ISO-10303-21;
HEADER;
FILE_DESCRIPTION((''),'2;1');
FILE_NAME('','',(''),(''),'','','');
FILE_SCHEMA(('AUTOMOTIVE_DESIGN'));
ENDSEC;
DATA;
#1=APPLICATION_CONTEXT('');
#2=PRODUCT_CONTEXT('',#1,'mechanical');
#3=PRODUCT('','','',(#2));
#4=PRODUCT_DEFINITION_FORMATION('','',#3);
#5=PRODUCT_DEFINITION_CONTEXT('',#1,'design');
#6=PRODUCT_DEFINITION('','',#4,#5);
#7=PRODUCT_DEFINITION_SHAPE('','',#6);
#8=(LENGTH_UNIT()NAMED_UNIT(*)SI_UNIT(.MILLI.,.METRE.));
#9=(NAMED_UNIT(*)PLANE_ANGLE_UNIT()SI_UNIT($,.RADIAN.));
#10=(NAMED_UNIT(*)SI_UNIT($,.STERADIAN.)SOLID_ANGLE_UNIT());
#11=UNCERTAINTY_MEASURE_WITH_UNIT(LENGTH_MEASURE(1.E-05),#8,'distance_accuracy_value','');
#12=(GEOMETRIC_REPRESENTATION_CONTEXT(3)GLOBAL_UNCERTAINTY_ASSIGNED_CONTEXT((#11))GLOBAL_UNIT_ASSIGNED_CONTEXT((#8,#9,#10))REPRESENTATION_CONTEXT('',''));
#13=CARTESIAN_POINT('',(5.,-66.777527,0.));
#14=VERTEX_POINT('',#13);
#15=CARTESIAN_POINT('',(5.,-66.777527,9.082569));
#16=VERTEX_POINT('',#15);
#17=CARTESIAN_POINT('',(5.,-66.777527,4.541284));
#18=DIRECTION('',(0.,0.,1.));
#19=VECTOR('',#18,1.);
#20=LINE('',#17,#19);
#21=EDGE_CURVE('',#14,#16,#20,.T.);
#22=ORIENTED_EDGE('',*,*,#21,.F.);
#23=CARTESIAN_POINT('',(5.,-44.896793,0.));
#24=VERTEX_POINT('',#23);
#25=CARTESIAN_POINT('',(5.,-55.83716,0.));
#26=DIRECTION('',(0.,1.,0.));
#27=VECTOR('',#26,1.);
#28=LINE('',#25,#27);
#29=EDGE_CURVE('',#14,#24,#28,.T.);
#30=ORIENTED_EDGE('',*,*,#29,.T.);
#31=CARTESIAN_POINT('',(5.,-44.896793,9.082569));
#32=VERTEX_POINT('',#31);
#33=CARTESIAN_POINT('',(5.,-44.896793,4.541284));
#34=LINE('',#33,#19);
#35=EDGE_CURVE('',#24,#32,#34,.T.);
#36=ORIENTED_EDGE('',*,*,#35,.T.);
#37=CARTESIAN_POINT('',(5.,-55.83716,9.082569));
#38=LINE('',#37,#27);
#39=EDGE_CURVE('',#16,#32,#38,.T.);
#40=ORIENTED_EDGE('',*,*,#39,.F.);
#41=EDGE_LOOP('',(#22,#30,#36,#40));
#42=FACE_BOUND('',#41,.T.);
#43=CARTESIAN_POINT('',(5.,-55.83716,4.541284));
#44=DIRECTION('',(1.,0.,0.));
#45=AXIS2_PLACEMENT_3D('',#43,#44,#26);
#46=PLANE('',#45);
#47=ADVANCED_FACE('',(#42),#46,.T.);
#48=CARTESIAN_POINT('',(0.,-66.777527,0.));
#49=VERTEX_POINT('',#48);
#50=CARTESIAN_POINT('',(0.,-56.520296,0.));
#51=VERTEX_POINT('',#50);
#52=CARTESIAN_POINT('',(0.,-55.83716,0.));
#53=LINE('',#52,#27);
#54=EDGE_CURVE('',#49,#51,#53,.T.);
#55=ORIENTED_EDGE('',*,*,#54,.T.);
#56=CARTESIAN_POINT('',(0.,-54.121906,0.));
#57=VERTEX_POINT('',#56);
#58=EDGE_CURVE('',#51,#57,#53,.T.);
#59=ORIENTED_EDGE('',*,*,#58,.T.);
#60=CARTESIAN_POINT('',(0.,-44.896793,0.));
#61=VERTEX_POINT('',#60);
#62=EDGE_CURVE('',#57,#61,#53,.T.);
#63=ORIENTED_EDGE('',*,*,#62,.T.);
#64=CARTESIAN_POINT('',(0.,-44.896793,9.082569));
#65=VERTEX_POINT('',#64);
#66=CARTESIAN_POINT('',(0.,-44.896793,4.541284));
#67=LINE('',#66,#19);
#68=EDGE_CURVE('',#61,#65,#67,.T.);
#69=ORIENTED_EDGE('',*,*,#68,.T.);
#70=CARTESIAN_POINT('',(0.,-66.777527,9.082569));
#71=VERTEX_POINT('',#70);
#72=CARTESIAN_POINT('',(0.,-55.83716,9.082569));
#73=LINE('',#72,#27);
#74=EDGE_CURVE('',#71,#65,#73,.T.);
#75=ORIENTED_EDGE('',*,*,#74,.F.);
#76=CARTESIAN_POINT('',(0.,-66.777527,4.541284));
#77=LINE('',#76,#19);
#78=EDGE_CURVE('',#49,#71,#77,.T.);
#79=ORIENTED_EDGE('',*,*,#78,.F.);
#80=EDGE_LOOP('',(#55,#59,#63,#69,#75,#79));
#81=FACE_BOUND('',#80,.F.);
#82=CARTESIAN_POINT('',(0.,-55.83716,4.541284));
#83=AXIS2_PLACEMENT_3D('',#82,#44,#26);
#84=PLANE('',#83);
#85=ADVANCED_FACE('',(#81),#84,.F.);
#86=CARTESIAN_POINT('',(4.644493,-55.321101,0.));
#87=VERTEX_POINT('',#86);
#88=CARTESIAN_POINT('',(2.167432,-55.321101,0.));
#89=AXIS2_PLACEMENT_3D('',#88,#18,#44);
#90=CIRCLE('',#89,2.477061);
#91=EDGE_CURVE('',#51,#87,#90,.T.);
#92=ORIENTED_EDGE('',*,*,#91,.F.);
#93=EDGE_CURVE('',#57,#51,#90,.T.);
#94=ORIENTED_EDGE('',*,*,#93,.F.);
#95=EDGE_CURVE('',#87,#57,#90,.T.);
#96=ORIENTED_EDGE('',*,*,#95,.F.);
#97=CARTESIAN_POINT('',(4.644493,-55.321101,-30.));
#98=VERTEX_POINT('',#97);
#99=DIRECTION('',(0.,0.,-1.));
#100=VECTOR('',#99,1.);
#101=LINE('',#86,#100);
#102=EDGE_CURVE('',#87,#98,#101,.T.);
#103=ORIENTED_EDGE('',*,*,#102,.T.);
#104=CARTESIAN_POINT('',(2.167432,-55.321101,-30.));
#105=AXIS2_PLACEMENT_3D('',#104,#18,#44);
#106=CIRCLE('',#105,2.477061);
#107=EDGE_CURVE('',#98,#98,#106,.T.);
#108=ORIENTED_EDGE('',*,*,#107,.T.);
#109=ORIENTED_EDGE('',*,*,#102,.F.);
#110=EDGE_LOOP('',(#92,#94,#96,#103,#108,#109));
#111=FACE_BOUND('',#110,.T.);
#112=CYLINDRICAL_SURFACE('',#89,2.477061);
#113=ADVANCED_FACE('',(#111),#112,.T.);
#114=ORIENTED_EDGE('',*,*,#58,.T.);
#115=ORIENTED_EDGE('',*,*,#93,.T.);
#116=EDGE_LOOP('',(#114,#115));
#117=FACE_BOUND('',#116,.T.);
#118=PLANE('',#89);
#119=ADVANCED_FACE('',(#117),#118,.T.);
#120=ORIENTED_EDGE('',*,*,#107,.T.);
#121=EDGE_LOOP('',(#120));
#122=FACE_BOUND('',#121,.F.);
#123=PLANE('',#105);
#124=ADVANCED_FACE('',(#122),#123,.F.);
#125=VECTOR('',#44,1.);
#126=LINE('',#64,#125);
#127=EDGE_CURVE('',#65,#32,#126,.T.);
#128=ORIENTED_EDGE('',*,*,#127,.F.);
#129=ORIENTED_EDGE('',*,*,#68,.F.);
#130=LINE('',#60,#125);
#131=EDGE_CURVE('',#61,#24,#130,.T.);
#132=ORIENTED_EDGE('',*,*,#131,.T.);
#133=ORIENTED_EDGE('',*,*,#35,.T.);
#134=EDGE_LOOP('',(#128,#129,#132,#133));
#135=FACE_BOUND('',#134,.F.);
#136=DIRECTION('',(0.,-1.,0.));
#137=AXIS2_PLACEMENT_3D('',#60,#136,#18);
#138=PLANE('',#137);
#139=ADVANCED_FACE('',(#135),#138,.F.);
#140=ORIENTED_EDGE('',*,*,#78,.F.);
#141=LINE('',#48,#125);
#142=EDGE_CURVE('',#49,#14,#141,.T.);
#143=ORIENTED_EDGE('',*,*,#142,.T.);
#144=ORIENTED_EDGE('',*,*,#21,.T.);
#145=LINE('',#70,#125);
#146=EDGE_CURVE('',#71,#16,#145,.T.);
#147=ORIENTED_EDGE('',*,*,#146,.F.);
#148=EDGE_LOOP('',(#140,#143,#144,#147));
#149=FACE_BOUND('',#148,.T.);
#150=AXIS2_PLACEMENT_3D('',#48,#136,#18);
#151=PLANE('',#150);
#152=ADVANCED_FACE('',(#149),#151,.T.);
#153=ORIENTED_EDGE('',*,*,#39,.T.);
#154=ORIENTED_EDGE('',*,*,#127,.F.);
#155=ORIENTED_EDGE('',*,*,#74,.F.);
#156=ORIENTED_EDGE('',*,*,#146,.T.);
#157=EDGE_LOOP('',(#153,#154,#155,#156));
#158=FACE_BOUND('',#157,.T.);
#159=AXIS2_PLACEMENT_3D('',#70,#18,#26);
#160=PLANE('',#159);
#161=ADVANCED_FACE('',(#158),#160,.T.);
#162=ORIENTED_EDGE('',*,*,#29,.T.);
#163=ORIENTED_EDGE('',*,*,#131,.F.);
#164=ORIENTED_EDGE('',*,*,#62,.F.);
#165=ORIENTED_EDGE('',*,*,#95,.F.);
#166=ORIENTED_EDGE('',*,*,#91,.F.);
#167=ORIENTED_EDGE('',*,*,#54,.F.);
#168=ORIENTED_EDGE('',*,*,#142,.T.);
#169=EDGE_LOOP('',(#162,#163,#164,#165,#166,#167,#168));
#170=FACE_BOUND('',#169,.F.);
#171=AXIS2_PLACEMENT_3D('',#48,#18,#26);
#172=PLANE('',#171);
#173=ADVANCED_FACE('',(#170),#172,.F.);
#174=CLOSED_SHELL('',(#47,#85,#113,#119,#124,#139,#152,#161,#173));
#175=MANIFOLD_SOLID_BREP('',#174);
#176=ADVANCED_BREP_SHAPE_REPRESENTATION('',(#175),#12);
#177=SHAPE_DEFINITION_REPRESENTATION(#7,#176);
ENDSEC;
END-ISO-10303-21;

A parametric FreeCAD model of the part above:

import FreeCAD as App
import Part
import Sketcher

V = App.Vector

doc = App.newDocument("Part")
params = doc.addObject("Spreadsheet::Sheet", "Params")
for row, (alias, value) in enumerate([
    ("pad1_length", "5 mm"),
    ("pad2_length", "30 mm"),
], start=1):
    params.set(f"A{row}", alias)
    params.set(f"B{row}", "=" + value)
    params.setAlias(f"B{row}", alias)

body = doc.addObject("PartDesign::Body", "Body")

sketch1 = doc.addObject("Sketcher::SketchObject", "Sketch")
body.addObject(sketch1)
sketch1.AttachmentSupport = (doc.YZ_Plane, [""])
sketch1.MapMode = "FlatFace"
sketch1.addGeometry(Part.LineSegment(V(-67, 9, 0), V(-67, 0, 0)), False)
sketch1.addGeometry(Part.LineSegment(V(-67, 0, 0), V(-45, 0, 0)), False)
sketch1.addGeometry(Part.LineSegment(V(-45, 0, 0), V(-45, 9, 0)), False)
sketch1.addGeometry(Part.LineSegment(V(-45, 9, 0), V(-67, 9, 0)), False)
sketch1.addConstraint(Sketcher.Constraint("Coincident", 0, 2, 1, 1))
sketch1.addConstraint(Sketcher.Constraint("Coincident", 1, 2, 2, 1))
sketch1.addConstraint(Sketcher.Constraint("Coincident", 2, 2, 3, 1))
sketch1.addConstraint(Sketcher.Constraint("Coincident", 3, 2, 0, 1))
sketch1.addConstraint(Sketcher.Constraint("Vertical", 0))
sketch1.addConstraint(Sketcher.Constraint("Horizontal", 1))
sketch1.addConstraint(Sketcher.Constraint("Vertical", 2))
sketch1.addConstraint(Sketcher.Constraint("Horizontal", 3))
sketch1.addConstraint(Sketcher.Constraint("PointOnObject", 0, 2, -1))
sketch1.addConstraint(Sketcher.Constraint("DistanceY", 0, 2, 0, 1, 9.082569))
sketch1.addConstraint(Sketcher.Constraint("DistanceX", 1, 1, 1, 2, 21.880734))
sketch1.addConstraint(Sketcher.Constraint("DistanceX", 0, 2, -1, 1, 66.777527))
pad1 = doc.addObject("PartDesign::Pad", "Pad")
body.addObject(pad1)
pad1.Profile = sketch1
pad1.setExpression("Length", "Params.pad1_length")

sketch2 = doc.addObject("Sketcher::SketchObject", "Sketch001")
body.addObject(sketch2)
sketch2.AttachmentSupport = (doc.XY_Plane, [""])
sketch2.MapMode = "FlatFace"
sketch2.addGeometry(Part.Circle(V(2.2, -55.3, 0), V(0, 0, 1), 2.5), False)
sketch2.addConstraint(Sketcher.Constraint("Diameter", 0, 4.954122))
sketch2.addConstraint(Sketcher.Constraint("DistanceY", 0, 3, -1, 1, 55.321101))
sketch2.addConstraint(Sketcher.Constraint("DistanceX", -1, 1, 0, 3, 2.167432))
pad2 = doc.addObject("PartDesign::Pad", "Pad001")
body.addObject(pad2)
pad2.Profile = sketch2
pad2.setExpression("Length", "Params.pad2_length")
pad2.Reversed = True

doc.recompute()
